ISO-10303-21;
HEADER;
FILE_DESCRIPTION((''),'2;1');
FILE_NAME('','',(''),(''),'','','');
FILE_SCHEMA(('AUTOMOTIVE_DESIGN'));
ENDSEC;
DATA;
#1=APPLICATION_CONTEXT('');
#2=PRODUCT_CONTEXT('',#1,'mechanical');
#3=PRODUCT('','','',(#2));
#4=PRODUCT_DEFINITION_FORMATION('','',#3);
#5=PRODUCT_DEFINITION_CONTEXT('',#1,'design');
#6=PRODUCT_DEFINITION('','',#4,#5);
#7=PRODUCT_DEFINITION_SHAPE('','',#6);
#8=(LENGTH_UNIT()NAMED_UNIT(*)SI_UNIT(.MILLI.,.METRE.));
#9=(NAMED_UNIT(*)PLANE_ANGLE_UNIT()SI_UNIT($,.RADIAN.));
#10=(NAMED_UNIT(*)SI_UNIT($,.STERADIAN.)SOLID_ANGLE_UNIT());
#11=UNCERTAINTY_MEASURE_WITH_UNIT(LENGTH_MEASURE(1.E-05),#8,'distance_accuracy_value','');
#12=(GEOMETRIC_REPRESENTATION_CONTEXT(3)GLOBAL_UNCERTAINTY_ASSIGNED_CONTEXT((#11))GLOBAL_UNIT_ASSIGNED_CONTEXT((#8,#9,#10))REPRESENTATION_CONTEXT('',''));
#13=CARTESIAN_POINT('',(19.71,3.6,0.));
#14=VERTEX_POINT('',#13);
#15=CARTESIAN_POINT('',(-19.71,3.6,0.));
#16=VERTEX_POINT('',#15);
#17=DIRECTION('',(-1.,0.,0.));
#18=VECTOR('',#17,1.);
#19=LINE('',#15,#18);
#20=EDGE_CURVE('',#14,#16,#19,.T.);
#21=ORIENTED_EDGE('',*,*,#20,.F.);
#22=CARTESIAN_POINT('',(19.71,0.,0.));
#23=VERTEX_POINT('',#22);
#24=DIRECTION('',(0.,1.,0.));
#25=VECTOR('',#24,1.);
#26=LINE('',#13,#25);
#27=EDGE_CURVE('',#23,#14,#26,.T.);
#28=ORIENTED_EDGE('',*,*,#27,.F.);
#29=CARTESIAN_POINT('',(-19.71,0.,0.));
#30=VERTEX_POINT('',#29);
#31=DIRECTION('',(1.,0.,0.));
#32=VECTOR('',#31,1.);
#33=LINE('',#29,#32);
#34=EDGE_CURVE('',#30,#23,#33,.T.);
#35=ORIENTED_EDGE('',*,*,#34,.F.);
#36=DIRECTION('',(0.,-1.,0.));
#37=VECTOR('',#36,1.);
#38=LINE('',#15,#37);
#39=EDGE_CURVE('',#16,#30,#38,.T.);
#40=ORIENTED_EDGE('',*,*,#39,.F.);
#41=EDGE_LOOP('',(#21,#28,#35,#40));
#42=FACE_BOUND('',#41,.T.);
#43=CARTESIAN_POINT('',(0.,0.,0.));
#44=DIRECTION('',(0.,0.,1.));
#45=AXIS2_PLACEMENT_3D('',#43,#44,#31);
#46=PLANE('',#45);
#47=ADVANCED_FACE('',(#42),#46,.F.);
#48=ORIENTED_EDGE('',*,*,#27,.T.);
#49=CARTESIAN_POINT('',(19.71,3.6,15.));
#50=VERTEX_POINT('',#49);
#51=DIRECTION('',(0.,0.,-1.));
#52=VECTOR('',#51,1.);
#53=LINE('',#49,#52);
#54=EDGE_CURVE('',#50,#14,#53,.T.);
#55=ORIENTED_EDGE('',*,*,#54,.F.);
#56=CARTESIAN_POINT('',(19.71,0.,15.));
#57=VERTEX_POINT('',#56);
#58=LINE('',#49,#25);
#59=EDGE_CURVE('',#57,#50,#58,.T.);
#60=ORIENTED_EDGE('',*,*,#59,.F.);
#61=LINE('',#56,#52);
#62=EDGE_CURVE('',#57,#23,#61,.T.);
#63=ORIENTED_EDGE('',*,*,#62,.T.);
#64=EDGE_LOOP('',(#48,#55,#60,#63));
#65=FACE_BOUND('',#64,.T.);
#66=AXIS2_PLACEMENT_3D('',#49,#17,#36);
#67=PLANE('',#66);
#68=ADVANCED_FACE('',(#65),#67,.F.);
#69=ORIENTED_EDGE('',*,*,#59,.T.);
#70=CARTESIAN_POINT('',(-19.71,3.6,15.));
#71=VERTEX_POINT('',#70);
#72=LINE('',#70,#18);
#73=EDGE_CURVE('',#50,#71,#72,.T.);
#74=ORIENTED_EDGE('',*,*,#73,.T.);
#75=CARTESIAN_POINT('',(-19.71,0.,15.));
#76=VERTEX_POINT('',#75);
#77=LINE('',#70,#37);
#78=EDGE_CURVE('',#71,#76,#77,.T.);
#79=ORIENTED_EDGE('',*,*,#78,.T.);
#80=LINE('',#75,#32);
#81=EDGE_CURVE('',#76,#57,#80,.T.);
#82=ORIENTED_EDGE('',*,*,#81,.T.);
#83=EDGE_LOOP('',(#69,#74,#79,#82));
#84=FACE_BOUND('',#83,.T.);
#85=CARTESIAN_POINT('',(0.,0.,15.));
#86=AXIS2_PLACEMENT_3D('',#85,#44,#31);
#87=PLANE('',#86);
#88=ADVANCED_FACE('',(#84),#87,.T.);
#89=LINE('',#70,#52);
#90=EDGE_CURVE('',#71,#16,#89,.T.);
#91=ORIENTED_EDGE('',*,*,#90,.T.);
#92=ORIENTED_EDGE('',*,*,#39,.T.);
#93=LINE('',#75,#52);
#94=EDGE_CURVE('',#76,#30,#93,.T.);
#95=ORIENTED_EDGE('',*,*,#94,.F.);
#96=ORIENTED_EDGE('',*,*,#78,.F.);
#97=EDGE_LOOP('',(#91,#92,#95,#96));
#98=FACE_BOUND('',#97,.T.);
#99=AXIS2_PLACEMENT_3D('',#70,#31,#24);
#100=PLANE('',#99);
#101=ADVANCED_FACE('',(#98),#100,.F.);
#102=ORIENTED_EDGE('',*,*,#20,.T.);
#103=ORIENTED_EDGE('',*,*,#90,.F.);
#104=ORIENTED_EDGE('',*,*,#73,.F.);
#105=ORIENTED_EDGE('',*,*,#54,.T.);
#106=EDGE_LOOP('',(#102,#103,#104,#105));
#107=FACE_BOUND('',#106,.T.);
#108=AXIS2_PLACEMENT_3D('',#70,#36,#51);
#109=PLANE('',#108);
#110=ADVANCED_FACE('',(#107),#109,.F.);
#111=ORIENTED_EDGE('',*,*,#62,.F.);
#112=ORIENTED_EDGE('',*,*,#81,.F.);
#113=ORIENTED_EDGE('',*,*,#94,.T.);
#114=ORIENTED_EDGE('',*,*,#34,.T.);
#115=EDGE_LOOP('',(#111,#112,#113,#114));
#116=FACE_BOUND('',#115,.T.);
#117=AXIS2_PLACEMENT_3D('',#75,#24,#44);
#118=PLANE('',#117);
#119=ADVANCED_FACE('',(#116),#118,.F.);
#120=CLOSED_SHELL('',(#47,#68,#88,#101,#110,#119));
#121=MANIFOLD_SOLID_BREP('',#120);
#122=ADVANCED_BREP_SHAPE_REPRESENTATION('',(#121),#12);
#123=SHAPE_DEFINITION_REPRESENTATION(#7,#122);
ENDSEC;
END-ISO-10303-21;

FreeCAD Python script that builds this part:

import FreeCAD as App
import Part
import Sketcher

V = App.Vector

doc = App.newDocument("Part")
body = doc.addObject("PartDesign::Body", "Body")

# Sketch on XY plane
sketch1 = body.newObject("Sketcher::SketchObject", "Sketch")
sketch1.AttachmentSupport = (doc.getObject("XY_Plane"), [""])
sketch1.MapMode = "FlatFace"
sketch1.addGeometry([
    Part.LineSegment(V(-19.71, 3.6, 0), V(-19.71, 0, 0)),
    Part.LineSegment(V(-19.71, 0, 0), V(19.71, 0, 0)),
    Part.LineSegment(V(19.71, 0, 0), V(19.71, 3.6, 0)),
    Part.LineSegment(V(19.71, 3.6, 0), V(-19.71, 3.6, 0)),
], False)
sketch1.addConstraint([
    Sketcher.Constraint("Coincident", 0, 2, 1, 1),
    Sketcher.Constraint("Coincident", 1, 2, 2, 1),
    Sketcher.Constraint("Coincident", 2, 2, 3, 1),
    Sketcher.Constraint("Coincident", 3, 2, 0, 1),
    Sketcher.Constraint("Vertical", 0),
    Sketcher.Constraint("Horizontal", 1),
    Sketcher.Constraint("Vertical", 2),
    Sketcher.Constraint("Horizontal", 3),
    Sketcher.Constraint("Symmetric", 0, 2, 1, 2, -1, 1),
    Sketcher.Constraint("DistanceY", 0, 2, 0, 1, 3.6),
    Sketcher.Constraint("DistanceX", 1, 1, 1, 2, 39.42),
])
pad1 = body.newObject("PartDesign::Pad", "Pad")
pad1.Profile = sketch1
pad1.Length = 15

doc.recompute()
